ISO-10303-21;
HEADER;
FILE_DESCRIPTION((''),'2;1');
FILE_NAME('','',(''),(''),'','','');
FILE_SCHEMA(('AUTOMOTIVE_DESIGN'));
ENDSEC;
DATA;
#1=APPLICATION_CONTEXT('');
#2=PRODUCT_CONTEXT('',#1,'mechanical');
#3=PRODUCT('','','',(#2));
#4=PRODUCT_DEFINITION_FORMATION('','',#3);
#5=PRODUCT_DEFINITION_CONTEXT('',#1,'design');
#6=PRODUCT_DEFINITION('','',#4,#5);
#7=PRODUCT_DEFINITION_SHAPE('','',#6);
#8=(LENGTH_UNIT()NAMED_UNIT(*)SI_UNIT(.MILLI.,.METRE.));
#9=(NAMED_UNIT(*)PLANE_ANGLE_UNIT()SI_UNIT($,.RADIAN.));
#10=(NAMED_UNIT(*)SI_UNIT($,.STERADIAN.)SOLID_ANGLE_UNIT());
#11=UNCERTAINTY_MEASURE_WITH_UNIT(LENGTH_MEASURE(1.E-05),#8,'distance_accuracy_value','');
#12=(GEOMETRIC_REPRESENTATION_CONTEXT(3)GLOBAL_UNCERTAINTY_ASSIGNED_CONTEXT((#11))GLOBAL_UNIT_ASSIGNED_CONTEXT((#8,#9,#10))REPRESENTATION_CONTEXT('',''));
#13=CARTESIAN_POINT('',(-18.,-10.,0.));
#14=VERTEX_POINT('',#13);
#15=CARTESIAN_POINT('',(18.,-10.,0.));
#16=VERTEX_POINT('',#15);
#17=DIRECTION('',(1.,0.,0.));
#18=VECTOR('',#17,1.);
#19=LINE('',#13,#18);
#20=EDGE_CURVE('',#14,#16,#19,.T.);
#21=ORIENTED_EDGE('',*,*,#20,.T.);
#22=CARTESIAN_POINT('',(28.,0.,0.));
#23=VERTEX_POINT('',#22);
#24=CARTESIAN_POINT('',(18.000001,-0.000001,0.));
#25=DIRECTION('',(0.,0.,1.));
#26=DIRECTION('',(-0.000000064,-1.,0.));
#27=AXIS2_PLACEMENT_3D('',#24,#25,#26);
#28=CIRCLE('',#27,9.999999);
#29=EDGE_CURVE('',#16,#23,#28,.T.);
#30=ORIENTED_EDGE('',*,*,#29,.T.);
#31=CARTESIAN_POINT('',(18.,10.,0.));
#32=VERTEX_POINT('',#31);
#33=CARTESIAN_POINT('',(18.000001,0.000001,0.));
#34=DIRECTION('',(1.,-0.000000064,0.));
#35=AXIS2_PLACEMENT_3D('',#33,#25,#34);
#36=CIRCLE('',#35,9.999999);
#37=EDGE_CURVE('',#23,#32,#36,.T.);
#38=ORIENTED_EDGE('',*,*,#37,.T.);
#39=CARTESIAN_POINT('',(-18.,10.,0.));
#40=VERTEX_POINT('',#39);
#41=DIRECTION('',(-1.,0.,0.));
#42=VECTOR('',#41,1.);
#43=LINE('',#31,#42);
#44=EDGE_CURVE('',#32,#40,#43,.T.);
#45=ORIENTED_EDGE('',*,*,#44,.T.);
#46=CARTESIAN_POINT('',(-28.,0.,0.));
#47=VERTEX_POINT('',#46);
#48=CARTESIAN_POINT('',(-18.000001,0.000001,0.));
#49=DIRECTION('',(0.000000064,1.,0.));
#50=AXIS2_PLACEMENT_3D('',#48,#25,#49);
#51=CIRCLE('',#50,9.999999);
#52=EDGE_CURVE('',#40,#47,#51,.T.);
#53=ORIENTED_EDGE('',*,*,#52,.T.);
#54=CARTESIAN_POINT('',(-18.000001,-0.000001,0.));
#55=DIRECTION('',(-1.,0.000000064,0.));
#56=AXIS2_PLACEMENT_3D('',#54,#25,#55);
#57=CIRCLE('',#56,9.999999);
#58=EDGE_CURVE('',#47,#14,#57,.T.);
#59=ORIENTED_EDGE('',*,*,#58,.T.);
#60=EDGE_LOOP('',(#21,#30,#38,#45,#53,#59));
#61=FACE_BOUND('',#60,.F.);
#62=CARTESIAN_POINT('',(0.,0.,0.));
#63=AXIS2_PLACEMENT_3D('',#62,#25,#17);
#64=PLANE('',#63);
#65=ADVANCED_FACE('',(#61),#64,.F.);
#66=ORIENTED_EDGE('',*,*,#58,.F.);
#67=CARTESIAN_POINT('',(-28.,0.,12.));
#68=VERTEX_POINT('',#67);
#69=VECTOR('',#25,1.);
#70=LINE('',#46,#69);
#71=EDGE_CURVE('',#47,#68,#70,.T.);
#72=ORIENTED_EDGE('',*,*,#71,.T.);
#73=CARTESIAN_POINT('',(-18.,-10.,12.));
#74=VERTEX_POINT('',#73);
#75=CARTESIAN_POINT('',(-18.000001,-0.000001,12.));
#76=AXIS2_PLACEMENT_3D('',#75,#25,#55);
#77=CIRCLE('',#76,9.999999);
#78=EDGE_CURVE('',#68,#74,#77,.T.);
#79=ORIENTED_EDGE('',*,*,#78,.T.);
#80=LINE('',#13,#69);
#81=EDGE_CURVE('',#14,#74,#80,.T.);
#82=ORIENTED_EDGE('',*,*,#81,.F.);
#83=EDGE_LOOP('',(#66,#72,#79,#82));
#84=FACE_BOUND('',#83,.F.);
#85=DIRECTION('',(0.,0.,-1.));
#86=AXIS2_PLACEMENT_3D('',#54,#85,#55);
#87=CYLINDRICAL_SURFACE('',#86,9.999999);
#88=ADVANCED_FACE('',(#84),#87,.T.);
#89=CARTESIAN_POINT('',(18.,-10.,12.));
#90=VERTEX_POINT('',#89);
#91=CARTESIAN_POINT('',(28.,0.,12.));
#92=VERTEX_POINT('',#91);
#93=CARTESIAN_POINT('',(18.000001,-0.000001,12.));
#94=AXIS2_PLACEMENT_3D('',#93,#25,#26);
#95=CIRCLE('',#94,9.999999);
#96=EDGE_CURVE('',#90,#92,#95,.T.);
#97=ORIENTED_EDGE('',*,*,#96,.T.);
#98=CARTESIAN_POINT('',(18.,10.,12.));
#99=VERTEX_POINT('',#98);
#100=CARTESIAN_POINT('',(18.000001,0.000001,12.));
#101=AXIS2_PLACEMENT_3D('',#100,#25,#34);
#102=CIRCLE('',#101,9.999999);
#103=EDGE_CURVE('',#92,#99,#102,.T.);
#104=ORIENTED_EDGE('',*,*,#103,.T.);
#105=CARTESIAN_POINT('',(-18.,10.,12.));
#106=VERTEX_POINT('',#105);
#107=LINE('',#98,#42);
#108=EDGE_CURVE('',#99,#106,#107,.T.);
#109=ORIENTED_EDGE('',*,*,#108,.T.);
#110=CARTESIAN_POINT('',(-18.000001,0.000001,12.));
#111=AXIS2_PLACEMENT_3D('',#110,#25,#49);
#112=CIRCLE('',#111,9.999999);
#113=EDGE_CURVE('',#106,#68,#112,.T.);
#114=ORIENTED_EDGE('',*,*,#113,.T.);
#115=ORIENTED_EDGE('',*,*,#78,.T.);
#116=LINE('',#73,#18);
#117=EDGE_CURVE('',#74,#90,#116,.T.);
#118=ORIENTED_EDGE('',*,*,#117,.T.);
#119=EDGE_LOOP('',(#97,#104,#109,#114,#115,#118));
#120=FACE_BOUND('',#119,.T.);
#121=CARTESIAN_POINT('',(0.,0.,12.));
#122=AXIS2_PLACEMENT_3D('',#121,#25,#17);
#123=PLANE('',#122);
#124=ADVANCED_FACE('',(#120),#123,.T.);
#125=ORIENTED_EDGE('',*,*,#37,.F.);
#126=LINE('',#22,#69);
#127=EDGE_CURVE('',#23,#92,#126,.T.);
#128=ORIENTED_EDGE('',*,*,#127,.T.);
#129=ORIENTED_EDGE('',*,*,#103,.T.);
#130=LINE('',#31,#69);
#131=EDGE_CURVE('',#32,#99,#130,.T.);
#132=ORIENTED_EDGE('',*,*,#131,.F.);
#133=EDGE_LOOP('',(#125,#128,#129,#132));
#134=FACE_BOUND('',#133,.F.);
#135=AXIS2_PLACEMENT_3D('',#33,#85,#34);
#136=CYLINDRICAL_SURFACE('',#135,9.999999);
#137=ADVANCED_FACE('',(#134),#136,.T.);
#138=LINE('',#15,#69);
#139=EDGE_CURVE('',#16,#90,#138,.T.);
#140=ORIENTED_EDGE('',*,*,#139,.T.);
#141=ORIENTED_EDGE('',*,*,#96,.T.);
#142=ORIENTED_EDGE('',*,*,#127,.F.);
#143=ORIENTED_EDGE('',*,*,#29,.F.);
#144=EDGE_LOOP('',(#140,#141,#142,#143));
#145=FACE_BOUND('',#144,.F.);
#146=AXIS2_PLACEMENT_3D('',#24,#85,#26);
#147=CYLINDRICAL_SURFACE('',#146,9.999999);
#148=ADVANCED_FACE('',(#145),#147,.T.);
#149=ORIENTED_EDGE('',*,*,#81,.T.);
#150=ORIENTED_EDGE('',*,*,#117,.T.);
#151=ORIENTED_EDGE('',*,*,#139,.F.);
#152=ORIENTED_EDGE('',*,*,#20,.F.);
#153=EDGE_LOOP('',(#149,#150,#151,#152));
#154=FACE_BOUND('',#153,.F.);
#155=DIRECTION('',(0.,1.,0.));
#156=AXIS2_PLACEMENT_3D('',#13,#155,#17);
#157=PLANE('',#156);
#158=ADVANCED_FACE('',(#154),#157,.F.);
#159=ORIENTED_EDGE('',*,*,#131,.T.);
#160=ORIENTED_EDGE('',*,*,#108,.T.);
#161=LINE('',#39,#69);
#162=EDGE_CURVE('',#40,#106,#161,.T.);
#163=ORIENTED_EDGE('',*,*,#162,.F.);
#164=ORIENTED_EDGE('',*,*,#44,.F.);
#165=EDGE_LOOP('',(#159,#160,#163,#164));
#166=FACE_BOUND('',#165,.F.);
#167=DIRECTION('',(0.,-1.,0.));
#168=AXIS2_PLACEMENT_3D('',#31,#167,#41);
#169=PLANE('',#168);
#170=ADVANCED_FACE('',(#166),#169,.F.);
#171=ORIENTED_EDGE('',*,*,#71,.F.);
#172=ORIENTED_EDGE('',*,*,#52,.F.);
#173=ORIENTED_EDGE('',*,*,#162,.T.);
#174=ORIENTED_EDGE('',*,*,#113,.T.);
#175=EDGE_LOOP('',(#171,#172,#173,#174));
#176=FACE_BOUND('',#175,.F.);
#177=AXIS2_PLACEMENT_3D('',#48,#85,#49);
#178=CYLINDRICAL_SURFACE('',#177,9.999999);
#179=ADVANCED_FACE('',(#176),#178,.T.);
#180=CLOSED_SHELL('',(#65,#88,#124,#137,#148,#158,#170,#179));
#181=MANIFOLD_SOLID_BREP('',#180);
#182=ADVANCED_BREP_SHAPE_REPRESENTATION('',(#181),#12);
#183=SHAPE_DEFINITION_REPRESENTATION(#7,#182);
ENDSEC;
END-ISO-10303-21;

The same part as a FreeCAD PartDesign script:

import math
import FreeCAD as App
import Part
import Sketcher

V = App.Vector

doc = App.newDocument("Part")
params = doc.addObject("Spreadsheet::Sheet", "Params")
for row, (alias, value) in enumerate([
    ("sketch1_radius", "9.999999 mm"),
    ("sketch1_width", "36 mm"),
    ("pad1_length", "12 mm"),
], start=1):
    params.set(f"A{row}", alias)
    params.set(f"B{row}", "=" + value)
    params.setAlias(f"B{row}", alias)

body = doc.addObject("PartDesign::Body", "Body")

# Sketch on XY plane
sketch1 = body.newObject("Sketcher::SketchObject", "Sketch")
sketch1.AttachmentSupport = (doc.getObject("XY_Plane"), [""])
sketch1.MapMode = "FlatFace"
sketch1.addGeometry(Part.ArcOfCircle(Part.Circle(V(18, 0, 0), V(0, 0, 1), 10), math.radians(0), math.radians(90)), False)
sketch1.addGeometry(Part.LineSegment(V(18, 10, 0), V(-18, 10, 0)), False)
sketch1.addGeometry(Part.ArcOfCircle(Part.Circle(V(-18, 0, 0), V(0, 0, 1), 10), math.radians(90), math.radians(180)), False)
sketch1.addGeometry(Part.ArcOfCircle(Part.Circle(V(-18, 0, 0), V(0, 0, 1), 10), math.radians(180), math.radians(270)), False)
sketch1.addGeometry(Part.LineSegment(V(-18, -10, 0), V(18, -10, 0)), False)
sketch1.addGeometry(Part.ArcOfCircle(Part.Circle(V(18, 0, 0), V(0, 0, 1), 10), math.radians(-90), math.radians(0)), False)
sketch1.addConstraint(Sketcher.Constraint("Tangent", 0, 2, 1, 1))
sketch1.addConstraint(Sketcher.Constraint("Tangent", 1, 2, 2, 1))
sketch1.addConstraint(Sketcher.Constraint("Tangent", 2, 2, 3, 1))
sketch1.addConstraint(Sketcher.Constraint("Tangent", 3, 2, 4, 1))
sketch1.addConstraint(Sketcher.Constraint("Tangent", 4, 2, 5, 1))
sketch1.addConstraint(Sketcher.Constraint("Tangent", 5, 2, 0, 1))
sketch1.addConstraint(Sketcher.Constraint("Horizontal", 1))
sketch1.addConstraint(Sketcher.Constraint("Horizontal", 4))
sketch1.addConstraint(Sketcher.Constraint("Equal", 0, 2))
sketch1.addConstraint(Sketcher.Constraint("Equal", 2, 3))
sketch1.addConstraint(Sketcher.Constraint("Symmetric", 0, 3, 2, 3, -1, 1))
sketch1.addConstraint(Sketcher.Constraint("PointOnObject", 2, 2, -1))
sketch1.addConstraint(Sketcher.Constraint("PointOnObject", 5, 2, -1))
sketch1.addConstraint(Sketcher.Constraint("Radius", 0, 9.999999))
sketch1.addConstraint(Sketcher.Constraint("DistanceX", 1, 2, 1, 1, 36.0))
sketch1.setExpression("Constraints[13]", "Params.sketch1_radius")
sketch1.setExpression("Constraints[14]", "Params.sketch1_width")
pad1 = body.newObject("PartDesign::Pad", "Pad")
pad1.Profile = sketch1
pad1.setExpression("Length", "Params.pad1_length")

doc.recompute()
